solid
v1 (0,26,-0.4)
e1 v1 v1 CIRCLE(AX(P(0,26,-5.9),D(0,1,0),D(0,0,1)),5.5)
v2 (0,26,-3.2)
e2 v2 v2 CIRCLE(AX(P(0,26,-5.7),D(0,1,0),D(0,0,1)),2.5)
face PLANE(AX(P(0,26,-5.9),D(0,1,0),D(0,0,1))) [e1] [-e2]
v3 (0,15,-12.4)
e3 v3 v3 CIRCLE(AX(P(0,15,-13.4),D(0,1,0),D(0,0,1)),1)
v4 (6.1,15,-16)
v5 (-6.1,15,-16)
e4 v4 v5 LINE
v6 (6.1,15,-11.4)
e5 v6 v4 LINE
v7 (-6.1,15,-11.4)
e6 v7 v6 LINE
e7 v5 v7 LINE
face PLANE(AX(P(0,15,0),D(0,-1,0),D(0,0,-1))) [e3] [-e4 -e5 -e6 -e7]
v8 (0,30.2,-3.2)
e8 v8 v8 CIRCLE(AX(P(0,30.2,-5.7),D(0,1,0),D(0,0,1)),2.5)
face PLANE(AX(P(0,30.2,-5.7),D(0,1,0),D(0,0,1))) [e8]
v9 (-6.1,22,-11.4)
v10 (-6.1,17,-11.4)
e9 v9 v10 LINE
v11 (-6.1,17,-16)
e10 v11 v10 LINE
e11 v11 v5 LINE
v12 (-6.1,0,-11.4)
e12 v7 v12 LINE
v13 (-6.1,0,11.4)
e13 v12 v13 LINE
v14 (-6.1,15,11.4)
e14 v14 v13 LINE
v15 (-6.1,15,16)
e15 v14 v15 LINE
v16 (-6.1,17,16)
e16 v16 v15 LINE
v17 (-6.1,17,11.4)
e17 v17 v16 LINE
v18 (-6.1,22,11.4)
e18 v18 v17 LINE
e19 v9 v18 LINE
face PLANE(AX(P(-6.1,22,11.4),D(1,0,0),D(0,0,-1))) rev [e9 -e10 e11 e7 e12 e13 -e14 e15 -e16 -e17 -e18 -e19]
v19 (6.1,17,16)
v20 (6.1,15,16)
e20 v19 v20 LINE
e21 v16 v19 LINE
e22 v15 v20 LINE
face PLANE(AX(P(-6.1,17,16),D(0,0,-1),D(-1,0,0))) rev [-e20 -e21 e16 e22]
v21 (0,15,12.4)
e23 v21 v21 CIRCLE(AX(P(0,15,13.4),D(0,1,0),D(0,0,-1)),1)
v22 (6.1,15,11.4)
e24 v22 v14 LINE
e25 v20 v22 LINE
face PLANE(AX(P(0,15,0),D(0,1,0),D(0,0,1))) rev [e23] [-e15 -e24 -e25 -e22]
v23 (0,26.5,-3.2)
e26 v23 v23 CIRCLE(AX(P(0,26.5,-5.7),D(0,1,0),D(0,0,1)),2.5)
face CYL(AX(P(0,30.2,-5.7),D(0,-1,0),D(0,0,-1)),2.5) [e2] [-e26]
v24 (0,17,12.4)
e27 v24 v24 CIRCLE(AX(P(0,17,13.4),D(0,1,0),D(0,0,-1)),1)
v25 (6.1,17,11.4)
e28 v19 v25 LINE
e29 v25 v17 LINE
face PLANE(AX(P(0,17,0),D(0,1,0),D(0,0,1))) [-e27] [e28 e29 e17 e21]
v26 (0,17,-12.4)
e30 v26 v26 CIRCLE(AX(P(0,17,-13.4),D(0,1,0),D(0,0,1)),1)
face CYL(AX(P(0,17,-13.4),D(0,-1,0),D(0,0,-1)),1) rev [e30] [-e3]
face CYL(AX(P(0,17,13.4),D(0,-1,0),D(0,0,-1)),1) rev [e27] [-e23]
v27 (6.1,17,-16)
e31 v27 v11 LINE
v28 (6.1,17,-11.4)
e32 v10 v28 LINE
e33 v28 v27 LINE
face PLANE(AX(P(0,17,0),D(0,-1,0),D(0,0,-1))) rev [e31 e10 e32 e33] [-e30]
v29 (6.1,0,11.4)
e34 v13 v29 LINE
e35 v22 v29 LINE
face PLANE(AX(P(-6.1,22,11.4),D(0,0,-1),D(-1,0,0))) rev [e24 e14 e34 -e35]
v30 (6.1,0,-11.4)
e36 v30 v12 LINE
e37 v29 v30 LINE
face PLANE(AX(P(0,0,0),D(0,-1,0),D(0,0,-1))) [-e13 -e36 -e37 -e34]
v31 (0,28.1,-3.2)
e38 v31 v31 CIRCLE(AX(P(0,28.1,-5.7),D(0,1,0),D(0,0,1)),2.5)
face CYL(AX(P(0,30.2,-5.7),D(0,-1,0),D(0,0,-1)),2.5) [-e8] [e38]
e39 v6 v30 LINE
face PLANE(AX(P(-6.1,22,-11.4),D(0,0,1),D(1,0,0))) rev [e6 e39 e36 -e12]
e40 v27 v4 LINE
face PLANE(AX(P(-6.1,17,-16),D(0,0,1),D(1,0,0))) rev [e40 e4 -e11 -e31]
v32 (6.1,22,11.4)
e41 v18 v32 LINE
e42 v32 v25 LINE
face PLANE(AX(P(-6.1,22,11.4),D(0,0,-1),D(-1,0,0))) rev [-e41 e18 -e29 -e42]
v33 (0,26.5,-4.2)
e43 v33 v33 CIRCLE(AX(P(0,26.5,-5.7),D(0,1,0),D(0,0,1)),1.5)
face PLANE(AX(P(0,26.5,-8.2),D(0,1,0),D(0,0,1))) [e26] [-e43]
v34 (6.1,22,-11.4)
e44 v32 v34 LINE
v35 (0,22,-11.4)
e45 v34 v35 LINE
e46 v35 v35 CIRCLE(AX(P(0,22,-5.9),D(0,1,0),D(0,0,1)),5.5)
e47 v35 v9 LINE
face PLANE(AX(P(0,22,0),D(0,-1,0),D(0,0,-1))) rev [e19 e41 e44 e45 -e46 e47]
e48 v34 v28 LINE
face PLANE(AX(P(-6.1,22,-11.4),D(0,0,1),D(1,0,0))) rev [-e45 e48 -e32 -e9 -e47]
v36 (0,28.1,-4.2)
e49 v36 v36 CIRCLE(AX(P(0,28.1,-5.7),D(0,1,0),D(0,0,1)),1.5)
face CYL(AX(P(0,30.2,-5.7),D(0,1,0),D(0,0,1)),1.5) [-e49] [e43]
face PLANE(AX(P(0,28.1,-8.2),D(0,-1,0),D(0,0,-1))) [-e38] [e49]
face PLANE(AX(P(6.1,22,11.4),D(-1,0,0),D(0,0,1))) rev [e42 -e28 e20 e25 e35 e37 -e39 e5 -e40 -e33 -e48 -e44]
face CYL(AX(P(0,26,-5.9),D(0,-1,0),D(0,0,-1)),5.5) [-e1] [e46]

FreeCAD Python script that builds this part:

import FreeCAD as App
import Part
import Sketcher
from FreeCAD import Vector
Q = App.Units.Quantity

doc = App.newDocument("Part")
body = doc.addObject("PartDesign::Body", "Body")

sketch1 = body.newObject("Sketcher::SketchObject", "Sketch")
sketch1.AttachmentSupport = (doc.getObject("XZ_Plane"), [""])
sketch1.MapMode = "FlatFace"
sketch1.addGeometry([
    Part.LineSegment(Vector(-6, -11, 0), Vector(-6, 11, 0)),
    Part.LineSegment(Vector(-6, 11, 0), Vector(6, 11, 0)),
    Part.LineSegment(Vector(6, 11, 0), Vector(6, -11, 0)),
    Part.LineSegment(Vector(6, -11, 0), Vector(-6, -11, 0)),
], False)
sketch1.addConstraint([
    Sketcher.Constraint("Coincident", 0, 2, 1, 1),
    Sketcher.Constraint("Coincident", 1, 2, 2, 1),
    Sketcher.Constraint("Coincident", 2, 2, 3, 1),
    Sketcher.Constraint("Coincident", 3, 2, 0, 1),
    Sketcher.Constraint("Vertical", 0),
    Sketcher.Constraint("Horizontal", 1),
    Sketcher.Constraint("Vertical", 2),
    Sketcher.Constraint("Horizontal", 3),
    Sketcher.Constraint("Symmetric", 0, 2, 2, 2, -1, 1),
    Sketcher.Constraint("DistanceX", 1, 1, 1, 2, Q("12.2 mm")),
    Sketcher.Constraint("DistanceY", 0, 1, 0, 2, Q("22.8 mm")),
])
pad1 = body.newObject("PartDesign::Pad", "Pad")
pad1.Profile = sketch1
pad1.Length = 22
pad1.Reversed = True

sketch2 = body.newObject("Sketcher::SketchObject", "Sketch001")
sketch2.AttachmentSupport = (doc.getObject("XZ_Plane"), [""])
sketch2.MapMode = "FlatFace"
sketch2.AttachmentOffset = App.Placement(Vector(0, 0, -15), App.Rotation())
sketch2.addGeometry([
    Part.LineSegment(Vector(-6.1, -16, 0), Vector(-6.1, -11.4, 0)),
    Part.LineSegment(Vector(-6.1, -11.4, 0), Vector(6.1, -11.4, 0)),
    Part.LineSegment(Vector(6.1, -11.4, 0), Vector(6.1, -16, 0)),
    Part.LineSegment(Vector(6.1, -16, 0), Vector(-6.1, -16, 0)),
    Part.Circle(Vector(0, -13.4, 0), Vector(0, 0, 1), 1),
    Part.LineSegment(Vector(-6.1, 11.4, 0), Vector(-6.1, 16, 0)),
    Part.LineSegment(Vector(-6.1, 16, 0), Vector(6.1, 16, 0)),
    Part.LineSegment(Vector(6.1, 16, 0), Vector(6.1, 11.4, 0)),
    Part.LineSegment(Vector(6.1, 11.4, 0), Vector(-6.1, 11.4, 0)),
    Part.Circle(Vector(0, 13.4, 0), Vector(0, 0, 1), 1),
], False)
sketch2.addConstraint([
    Sketcher.Constraint("Coincident", 0, 2, 1, 1),
    Sketcher.Constraint("Coincident", 1, 2, 2, 1),
    Sketcher.Constraint("Coincident", 2, 2, 3, 1),
    Sketcher.Constraint("Coincident", 3, 2, 0, 1),
    Sketcher.Constraint("Coincident", 5, 2, 6, 1),
    Sketcher.Constraint("Coincident", 6, 2, 7, 1),
    Sketcher.Constraint("Coincident", 7, 2, 8, 1),
    Sketcher.Constraint("Coincident", 8, 2, 5, 1),
    Sketcher.Constraint("Vertical", 0),
    Sketcher.Constraint("Horizontal", 1),
    Sketcher.Constraint("Vertical", 2),
    Sketcher.Constraint("Horizontal", 3),
    Sketcher.Constraint("Vertical", 5),
    Sketcher.Constraint("Horizontal", 6),
    Sketcher.Constraint("Vertical", 7),
    Sketcher.Constraint("Horizontal", 8),
    Sketcher.Constraint("Equal", 4, 9),
    Sketcher.Constraint("Symmetric", 4, 3, 9, 3, -1, 1),
    Sketcher.Constraint("Symmetric", 2, 2, 5, 2, -1, 1),
    Sketcher.Constraint("Symmetric", 0, 2, 7, 2, -1, 1),
    Sketcher.Constraint("PointOnObject", 4, 3, -2),
    Sketcher.Constraint("Vertical", 3, 2, 5, 2),
    Sketcher.Constraint("Diameter", 4, Q("2 mm")),
    Sketcher.Constraint("DistanceX", 1, 1, 1, 2, Q("12.2 mm")),
    Sketcher.Constraint("DistanceY", 0, 1, 0, 2, Q("4.6 mm")),
    Sketcher.Constraint("DistanceY", 2, 2, -1, 1, Q("16 mm")),
    Sketcher.Constraint("DistanceY", 4, 3, 0, 2, Q("2 mm")),
])
pad2 = body.newObject("PartDesign::Pad", "Pad001")
pad2.Profile = sketch2
pad2.Length = 2
pad2.Reversed = True

sketch3 = body.newObject("Sketcher::SketchObject", "Sketch002")
sketch3.AttachmentSupport = (doc.getObject("XZ_Plane"), [""])
sketch3.MapMode = "FlatFace"
sketch3.AttachmentOffset = App.Placement(Vector(0, 0, -22), App.Rotation())
sketch3.addGeometry(Part.Circle(Vector(0, -6, 0), Vector(0, 0, 1), 6), False)
sketch3.addConstraint([
    Sketcher.Constraint("PointOnObject", 0, 3, -2),
    Sketcher.Constraint("Diameter", 0, Q("11 mm")),
    Sketcher.Constraint("DistanceY", 0, 3, -1, 1, Q("5.9 mm")),
])
pad3 = body.newObject("PartDesign::Pad", "Pad002")
pad3.Profile = sketch3
pad3.Length = 4
pad3.Reversed = True

sketch4 = body.newObject("Sketcher::SketchObject", "Sketch003")
sketch4.AttachmentSupport = (doc.getObject("XZ_Plane"), [""])
sketch4.MapMode = "FlatFace"
sketch4.AttachmentOffset = App.Placement(Vector(0, 0, -26), App.Rotation())
sketch4.addGeometry(Part.Circle(Vector(0, -5.7, 0), Vector(0, 0, 1), 2.5), False)
sketch4.addConstraint([
    Sketcher.Constraint("PointOnObject", 0, 3, -2),
    Sketcher.Constraint("Diameter", 0, Q("5 mm")),
    Sketcher.Constraint("DistanceY", 0, 3, -1, 1, Q("5.7 mm")),
])
pad4 = body.newObject("PartDesign::Pad", "Pad003")
pad4.Profile = sketch4
pad4.Length = 4.2
pad4.Reversed = True

sketch5 = body.newObject("Sketcher::SketchObject", "Sketch004")
sketch5.AttachmentSupport = (doc.getObject("YZ_Plane"), [""])
sketch5.MapMode = "FlatFace"
sketch5.addGeometry([
    Part.LineSegment(Vector(28.1, -7.2, 0), Vector(26.5, -7.2, 0)),
    Part.LineSegment(Vector(26.5, -7.2, 0), Vector(26.5, -8.2, 0)),
    Part.LineSegment(Vector(26.5, -8.2, 0), Vector(28.1, -8.2, 0)),
    Part.LineSegment(Vector(28.1, -8.2, 0), Vector(28.1, -7.2, 0)),
], False)
sketch5.addGeometry(Part.LineSegment(Vector(28.1, -5.7, 0), Vector(26.5, -5.7, 0)), True)
sketch5.addConstraint([
    Sketcher.Constraint("Coincident", 0, 2, 1, 1),
    Sketcher.Constraint("Coincident", 1, 2, 2, 1),
    Sketcher.Constraint("Coincident", 2, 2, 3, 1),
    Sketcher.Constraint("Coincident", 3, 2, 0, 1),
    Sketcher.Constraint("Horizontal", 0),
    Sketcher.Constraint("Vertical", 1),
    Sketcher.Constraint("Horizontal", 2),
    Sketcher.Constraint("Vertical", 3),
    Sketcher.Constraint("Horizontal", 4),
    Sketcher.Constraint("Vertical", 3, 2, 4, 1),
    Sketcher.Constraint("Vertical", 1, 2, 4, 2),
    Sketcher.Constraint("DistanceY", 1, 2, 1, 1, Q("1 mm")),
    Sketcher.Constraint("DistanceX", 0, 2, 0, 1, Q("1.6 mm")),
    Sketcher.Constraint("DistanceX", -1, 1, 0, 2, Q("26.5 mm")),
    Sketcher.Constraint("DistanceY", 0, 2, -1, 1, Q("7.2 mm")),
    Sketcher.Constraint("DistanceY", 4, 1, -1, 1, Q("5.7 mm")),
])
groove = body.newObject("PartDesign::Groove", "Groove")
groove.Profile = sketch5
groove.ReferenceAxis = (sketch5, ["Axis0"])
groove.Angle = 360

doc.recompute()
